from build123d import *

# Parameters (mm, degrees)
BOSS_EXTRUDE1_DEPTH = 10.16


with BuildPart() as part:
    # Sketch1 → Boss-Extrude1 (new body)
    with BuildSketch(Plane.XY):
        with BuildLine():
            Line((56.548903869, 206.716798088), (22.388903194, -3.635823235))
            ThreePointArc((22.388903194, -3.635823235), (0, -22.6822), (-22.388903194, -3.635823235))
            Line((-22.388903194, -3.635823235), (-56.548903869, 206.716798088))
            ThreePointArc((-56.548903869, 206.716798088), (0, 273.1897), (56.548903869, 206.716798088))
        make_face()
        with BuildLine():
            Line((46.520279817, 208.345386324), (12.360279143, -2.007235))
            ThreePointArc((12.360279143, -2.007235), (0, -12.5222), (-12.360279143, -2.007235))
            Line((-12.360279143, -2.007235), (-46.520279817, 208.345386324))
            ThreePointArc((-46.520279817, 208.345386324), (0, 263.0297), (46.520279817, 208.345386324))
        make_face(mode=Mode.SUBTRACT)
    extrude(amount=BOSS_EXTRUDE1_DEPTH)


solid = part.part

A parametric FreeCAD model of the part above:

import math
import FreeCAD as App
import Part
import Sketcher
from FreeCAD import Vector
Q = App.Units.Quantity

doc = App.newDocument("Part")
body = doc.addObject("PartDesign::Body", "Body")

sketch1 = doc.addObject("Sketcher::SketchObject", "Sketch")
body.addObject(sketch1)
sketch1.AttachmentSupport = (doc.XY_Plane, [""])
sketch1.MapMode = "FlatFace"
sketch1.addGeometry([
    Part.LineSegment(Vector(22.388903, -3.635823, 0), Vector(56.548904, 206.716798, 0)),
    Part.ArcOfCircle(Part.Circle(Vector(0, 215.9, 0), Vector(0, 0, 1), 57.2897), math.radians(-9.223968), math.radians(189.223968)),
    Part.LineSegment(Vector(-56.548904, 206.716798, 0), Vector(-22.388903, -3.635823, 0)),
    Part.ArcOfCircle(Part.Circle(Vector(0, 0, 0), Vector(0, 0, 1), 22.6822), math.radians(-170.776032), math.radians(-9.223968)),
    Part.LineSegment(Vector(46.52028, 208.345386, 0), Vector(12.360279, -2.007235, 0)),
    Part.ArcOfCircle(Part.Circle(Vector(0, 0, 0), Vector(0, 0, 1), 12.5222), math.radians(-170.776032), math.radians(-9.223968)),
    Part.LineSegment(Vector(-12.360279, -2.007235, 0), Vector(-46.52028, 208.345386, 0)),
    Part.ArcOfCircle(Part.Circle(Vector(0, 215.9, 0), Vector(0, 0, 1), 47.1297), math.radians(-9.223968), math.radians(189.223968)),
], False)
sketch1.addConstraint([
    Sketcher.Constraint("Tangent", 0, 2, 1, 1),
    Sketcher.Constraint("Tangent", 1, 2, 2, 1),
    Sketcher.Constraint("Tangent", 2, 2, 3, 1),
    Sketcher.Constraint("Tangent", 3, 2, 0, 1),
    Sketcher.Constraint("Tangent", 4, 2, 5, 2),
    Sketcher.Constraint("Tangent", 5, 1, 6, 1),
    Sketcher.Constraint("Tangent", 6, 2, 7, 2),
    Sketcher.Constraint("Tangent", 7, 1, 4, 1),
    Sketcher.Constraint("Coincident", 3, 3, -1, 1),
    Sketcher.Constraint("Coincident", 5, 3, -1, 1),
    Sketcher.Constraint("Coincident", 7, 3, 1, 3),
    Sketcher.Constraint("PointOnObject", 1, 3, -2),
    Sketcher.Constraint("Parallel", 0, 4),
    Sketcher.Constraint("Radius", 3, Q("0.893 in")),
    Sketcher.Constraint("Radius", 5, Q("0.493 in")),
    Sketcher.Constraint("DistanceY", -1, 1, 1, 3, Q("8.5 in")),
    Sketcher.Constraint("Radius", 1, Q("2.2555 in")),
])
pad1 = doc.addObject("PartDesign::Pad", "Pad")
body.addObject(pad1)
pad1.Profile = sketch1
pad1.Length = Q("0.4 in")

doc.recompute()
